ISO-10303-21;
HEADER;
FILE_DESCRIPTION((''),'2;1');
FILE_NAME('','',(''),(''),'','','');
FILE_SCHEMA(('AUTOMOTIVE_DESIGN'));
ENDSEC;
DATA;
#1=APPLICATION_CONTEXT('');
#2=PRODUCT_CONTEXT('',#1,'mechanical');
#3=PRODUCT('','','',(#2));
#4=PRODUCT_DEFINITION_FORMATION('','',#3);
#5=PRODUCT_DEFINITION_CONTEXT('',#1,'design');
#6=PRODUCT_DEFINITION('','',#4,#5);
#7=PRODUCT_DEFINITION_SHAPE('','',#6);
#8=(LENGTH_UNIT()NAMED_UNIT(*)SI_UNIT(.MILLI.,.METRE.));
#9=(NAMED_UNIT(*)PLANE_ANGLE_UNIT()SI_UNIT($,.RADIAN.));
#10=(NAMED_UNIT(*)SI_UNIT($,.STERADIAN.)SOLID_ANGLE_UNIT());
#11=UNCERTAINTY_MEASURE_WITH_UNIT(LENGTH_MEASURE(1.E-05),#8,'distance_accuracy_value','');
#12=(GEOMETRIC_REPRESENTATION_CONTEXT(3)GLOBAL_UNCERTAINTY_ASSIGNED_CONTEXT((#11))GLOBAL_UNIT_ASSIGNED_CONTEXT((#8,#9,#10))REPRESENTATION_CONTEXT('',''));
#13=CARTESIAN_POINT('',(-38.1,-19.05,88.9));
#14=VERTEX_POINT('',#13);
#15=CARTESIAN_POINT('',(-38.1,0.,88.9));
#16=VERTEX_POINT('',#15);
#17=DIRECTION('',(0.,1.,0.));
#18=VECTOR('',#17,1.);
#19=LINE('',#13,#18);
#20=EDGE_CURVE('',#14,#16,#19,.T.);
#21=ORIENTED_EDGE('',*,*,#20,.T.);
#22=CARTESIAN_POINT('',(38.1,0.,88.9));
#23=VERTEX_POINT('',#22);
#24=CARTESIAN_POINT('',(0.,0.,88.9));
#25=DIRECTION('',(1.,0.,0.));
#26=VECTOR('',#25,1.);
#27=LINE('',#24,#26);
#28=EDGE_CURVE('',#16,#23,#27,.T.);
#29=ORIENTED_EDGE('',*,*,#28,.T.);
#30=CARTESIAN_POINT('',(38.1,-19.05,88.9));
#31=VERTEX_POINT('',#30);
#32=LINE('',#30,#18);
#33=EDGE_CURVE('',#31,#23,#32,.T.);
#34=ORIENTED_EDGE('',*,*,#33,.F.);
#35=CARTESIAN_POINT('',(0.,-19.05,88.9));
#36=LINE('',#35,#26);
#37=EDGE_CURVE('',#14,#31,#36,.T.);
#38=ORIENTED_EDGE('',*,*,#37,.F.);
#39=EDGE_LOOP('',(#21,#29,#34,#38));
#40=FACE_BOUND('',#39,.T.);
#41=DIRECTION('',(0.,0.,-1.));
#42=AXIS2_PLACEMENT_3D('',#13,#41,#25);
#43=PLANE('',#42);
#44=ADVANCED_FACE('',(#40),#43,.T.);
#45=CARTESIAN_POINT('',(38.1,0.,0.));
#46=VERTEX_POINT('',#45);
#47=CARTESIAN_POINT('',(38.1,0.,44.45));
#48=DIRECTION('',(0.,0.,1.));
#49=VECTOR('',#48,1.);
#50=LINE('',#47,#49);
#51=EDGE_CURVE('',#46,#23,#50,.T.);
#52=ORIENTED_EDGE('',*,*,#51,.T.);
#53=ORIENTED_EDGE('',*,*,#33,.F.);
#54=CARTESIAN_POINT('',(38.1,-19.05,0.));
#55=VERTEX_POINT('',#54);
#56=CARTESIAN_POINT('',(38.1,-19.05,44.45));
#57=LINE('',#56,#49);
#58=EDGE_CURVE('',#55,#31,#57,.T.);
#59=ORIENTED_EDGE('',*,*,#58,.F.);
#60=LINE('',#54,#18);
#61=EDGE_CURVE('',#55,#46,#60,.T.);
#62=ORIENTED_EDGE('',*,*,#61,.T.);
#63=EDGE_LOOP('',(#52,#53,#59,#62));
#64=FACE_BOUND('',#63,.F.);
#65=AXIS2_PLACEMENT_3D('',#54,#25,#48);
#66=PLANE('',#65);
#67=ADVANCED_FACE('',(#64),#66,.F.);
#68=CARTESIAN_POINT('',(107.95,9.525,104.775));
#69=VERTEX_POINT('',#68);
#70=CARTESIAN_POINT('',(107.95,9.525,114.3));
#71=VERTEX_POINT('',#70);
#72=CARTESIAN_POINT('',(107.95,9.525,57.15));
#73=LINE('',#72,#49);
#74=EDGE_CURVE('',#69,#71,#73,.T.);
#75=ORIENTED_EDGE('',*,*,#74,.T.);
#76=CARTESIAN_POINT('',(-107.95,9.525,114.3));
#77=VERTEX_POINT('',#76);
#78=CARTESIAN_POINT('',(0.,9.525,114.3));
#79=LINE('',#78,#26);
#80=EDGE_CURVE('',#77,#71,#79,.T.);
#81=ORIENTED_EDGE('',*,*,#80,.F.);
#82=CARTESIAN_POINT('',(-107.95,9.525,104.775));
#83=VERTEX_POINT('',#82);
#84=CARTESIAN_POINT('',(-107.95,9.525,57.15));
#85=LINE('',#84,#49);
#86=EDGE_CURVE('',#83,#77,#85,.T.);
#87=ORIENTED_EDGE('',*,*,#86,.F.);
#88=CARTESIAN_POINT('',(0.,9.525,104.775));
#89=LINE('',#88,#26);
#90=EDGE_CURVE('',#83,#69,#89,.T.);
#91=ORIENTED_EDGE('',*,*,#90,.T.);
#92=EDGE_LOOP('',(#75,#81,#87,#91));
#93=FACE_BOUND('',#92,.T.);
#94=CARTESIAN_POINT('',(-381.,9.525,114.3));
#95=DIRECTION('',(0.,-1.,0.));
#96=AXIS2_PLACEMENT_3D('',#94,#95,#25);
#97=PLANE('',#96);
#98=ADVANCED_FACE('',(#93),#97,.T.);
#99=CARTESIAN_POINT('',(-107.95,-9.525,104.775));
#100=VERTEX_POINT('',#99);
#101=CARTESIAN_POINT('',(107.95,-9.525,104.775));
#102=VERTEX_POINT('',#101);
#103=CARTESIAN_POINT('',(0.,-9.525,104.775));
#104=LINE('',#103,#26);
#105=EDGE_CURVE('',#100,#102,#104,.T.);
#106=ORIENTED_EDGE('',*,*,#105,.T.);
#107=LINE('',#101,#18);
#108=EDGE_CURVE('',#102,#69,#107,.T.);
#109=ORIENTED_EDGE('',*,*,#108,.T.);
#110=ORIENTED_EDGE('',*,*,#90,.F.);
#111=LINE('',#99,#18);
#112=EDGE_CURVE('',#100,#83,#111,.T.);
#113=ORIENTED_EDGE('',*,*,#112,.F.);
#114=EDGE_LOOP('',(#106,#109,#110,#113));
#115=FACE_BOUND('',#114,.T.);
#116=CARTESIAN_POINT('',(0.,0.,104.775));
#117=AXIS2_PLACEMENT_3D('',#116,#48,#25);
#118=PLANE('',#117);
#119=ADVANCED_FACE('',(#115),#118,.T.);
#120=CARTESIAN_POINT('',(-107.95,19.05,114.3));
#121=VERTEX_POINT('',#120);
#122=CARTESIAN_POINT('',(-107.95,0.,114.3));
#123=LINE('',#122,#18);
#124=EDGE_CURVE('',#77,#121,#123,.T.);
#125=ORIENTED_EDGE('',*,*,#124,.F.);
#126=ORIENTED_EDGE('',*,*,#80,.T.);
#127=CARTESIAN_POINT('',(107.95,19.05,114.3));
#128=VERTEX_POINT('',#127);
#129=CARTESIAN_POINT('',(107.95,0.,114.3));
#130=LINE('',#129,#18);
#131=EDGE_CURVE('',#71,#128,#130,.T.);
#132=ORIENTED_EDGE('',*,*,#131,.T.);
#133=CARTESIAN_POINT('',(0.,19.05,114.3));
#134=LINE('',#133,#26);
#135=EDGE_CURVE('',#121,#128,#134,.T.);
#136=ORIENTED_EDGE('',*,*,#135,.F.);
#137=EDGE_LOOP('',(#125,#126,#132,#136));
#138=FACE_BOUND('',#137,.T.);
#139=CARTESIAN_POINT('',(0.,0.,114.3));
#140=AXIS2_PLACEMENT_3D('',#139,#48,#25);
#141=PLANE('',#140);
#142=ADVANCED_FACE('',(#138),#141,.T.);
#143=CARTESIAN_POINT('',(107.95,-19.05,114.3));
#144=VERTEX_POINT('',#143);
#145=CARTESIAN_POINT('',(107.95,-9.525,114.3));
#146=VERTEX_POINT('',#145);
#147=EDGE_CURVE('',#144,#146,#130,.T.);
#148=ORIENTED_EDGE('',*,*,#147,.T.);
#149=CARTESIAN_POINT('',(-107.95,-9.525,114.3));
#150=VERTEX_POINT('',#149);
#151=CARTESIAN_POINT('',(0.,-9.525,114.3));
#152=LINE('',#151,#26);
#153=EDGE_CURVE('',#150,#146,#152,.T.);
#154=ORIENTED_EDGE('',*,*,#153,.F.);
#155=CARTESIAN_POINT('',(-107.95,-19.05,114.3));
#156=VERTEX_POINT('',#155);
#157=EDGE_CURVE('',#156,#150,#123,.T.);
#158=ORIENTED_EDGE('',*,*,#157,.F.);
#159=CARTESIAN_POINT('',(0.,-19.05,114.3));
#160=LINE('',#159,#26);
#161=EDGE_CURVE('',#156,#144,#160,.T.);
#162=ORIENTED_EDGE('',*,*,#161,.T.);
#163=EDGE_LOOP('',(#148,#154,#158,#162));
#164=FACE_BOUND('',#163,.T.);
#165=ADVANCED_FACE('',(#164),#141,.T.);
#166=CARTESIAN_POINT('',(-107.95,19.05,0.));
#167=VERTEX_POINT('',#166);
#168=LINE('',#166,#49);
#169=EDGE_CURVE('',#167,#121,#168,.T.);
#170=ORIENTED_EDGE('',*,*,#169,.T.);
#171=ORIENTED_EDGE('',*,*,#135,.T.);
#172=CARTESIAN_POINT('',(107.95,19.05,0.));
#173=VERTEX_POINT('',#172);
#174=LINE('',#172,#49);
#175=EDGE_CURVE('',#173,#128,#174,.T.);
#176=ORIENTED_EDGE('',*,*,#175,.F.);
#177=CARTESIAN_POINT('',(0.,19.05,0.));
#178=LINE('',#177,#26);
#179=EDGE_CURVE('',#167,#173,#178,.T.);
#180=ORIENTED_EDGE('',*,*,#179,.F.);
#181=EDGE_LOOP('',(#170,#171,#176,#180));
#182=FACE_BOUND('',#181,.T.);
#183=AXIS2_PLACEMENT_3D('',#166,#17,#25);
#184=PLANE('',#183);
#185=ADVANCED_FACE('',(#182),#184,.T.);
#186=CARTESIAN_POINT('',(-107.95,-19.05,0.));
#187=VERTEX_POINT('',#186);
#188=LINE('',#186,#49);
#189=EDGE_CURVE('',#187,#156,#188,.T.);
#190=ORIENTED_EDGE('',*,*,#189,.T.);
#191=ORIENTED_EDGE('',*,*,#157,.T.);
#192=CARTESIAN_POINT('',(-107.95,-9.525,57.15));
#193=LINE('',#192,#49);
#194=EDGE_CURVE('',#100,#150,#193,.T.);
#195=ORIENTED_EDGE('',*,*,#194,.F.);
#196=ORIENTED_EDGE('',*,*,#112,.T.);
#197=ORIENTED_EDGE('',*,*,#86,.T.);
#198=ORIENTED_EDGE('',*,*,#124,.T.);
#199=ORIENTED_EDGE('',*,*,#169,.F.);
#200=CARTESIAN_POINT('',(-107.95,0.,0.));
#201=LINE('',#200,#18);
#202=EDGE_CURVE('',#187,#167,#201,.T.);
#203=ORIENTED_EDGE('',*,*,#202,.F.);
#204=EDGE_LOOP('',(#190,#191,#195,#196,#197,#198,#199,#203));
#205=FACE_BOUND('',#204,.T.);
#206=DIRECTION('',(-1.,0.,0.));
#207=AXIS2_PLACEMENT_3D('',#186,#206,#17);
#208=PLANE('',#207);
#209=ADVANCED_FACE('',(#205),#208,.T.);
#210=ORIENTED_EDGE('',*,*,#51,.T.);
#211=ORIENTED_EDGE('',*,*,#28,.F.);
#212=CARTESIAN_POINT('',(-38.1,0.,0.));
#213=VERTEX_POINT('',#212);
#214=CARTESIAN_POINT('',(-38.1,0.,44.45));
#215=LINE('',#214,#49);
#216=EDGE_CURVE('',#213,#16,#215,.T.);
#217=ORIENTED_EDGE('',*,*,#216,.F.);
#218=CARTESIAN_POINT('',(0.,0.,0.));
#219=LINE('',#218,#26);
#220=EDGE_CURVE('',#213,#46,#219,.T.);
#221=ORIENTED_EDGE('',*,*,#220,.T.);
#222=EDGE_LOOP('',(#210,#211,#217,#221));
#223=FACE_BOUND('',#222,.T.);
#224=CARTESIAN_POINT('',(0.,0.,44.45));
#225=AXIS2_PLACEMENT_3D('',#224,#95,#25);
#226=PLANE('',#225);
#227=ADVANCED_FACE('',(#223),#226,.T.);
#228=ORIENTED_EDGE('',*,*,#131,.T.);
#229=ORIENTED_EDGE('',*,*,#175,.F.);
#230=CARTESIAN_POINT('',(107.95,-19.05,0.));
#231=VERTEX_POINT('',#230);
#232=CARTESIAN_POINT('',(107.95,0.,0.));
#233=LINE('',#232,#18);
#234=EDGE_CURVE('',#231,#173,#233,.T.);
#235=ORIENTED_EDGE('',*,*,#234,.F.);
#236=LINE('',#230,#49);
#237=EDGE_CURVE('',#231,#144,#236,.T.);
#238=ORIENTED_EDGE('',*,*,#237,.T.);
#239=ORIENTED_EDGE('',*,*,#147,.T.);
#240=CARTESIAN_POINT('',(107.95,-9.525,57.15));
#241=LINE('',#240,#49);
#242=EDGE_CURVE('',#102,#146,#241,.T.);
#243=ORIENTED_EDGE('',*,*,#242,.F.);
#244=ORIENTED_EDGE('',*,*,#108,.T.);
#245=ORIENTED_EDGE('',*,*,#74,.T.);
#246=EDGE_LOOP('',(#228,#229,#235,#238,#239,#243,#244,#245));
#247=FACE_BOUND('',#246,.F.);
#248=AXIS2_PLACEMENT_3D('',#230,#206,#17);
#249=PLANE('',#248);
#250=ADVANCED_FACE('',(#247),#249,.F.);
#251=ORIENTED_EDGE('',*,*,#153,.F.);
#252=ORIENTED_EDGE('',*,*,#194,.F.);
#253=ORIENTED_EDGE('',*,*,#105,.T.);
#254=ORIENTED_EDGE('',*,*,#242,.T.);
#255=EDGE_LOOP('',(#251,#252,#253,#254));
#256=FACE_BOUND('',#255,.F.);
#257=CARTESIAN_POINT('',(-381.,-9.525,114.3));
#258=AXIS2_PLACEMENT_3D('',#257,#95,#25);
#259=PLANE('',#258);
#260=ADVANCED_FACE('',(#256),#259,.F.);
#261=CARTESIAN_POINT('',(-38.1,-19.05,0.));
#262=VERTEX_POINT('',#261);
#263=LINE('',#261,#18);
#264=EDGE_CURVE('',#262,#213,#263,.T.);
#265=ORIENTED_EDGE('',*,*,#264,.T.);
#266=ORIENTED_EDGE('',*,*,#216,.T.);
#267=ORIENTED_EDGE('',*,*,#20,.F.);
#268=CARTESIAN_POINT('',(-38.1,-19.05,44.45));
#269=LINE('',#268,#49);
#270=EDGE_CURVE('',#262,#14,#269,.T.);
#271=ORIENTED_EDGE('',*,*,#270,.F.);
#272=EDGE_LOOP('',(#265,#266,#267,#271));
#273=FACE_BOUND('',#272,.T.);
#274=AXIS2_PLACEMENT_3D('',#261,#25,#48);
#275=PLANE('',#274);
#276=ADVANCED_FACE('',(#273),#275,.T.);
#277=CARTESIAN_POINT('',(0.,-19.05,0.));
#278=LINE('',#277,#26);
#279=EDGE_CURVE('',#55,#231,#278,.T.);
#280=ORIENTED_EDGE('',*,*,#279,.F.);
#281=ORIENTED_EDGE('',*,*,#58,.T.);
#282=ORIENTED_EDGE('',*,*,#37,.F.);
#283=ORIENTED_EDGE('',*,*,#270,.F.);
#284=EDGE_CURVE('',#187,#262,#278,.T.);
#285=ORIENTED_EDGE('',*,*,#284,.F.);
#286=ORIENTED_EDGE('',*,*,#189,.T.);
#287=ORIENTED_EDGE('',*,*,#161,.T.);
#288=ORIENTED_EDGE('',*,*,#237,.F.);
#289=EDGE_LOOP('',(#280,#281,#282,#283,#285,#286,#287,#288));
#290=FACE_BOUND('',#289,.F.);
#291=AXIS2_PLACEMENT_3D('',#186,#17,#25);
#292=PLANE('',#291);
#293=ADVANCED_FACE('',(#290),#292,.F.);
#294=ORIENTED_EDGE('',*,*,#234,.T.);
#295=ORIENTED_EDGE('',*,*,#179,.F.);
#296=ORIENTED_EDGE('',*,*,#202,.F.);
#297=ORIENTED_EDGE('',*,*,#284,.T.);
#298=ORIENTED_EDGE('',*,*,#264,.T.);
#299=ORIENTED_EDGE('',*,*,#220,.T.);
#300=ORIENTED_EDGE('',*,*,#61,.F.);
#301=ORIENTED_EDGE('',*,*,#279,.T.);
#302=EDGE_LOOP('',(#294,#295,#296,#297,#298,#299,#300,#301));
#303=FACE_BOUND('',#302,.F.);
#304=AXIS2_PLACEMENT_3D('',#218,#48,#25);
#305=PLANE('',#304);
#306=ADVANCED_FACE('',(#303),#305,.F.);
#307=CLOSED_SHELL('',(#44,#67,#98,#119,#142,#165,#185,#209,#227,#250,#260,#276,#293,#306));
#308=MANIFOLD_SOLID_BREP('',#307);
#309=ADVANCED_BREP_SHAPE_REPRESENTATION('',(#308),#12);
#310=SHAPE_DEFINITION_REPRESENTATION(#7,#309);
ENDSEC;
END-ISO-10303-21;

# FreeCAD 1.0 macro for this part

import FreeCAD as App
import Part
import Sketcher
Q = App.Units.Quantity

doc = App.newDocument("Part")
body = doc.addObject("PartDesign::Body", "Body")

# Sketch on XY plane
sketch1 = body.newObject("Sketcher::SketchObject", "Sketch")
sketch1.AttachmentSupport = (doc.getObject("XY_Plane"), [""])
sketch1.MapMode = "FlatFace"
sketch1.addGeometry(Part.LineSegment(App.Vector(-107.95, 19.05, 0), App.Vector(-107.95, -19.05, 0)), False)
sketch1.addGeometry(Part.LineSegment(App.Vector(-107.95, -19.05, 0), App.Vector(107.95, -19.05, 0)), False)
sketch1.addGeometry(Part.LineSegment(App.Vector(107.95, -19.05, 0), App.Vector(107.95, 19.05, 0)), False)
sketch1.addGeometry(Part.LineSegment(App.Vector(107.95, 19.05, 0), App.Vector(-107.95, 19.05, 0)), False)
sketch1.addConstraint(Sketcher.Constraint("Coincident", 0, 2, 1, 1))
sketch1.addConstraint(Sketcher.Constraint("Coincident", 1, 2, 2, 1))
sketch1.addConstraint(Sketcher.Constraint("Coincident", 2, 2, 3, 1))
sketch1.addConstraint(Sketcher.Constraint("Coincident", 3, 2, 0, 1))
sketch1.addConstraint(Sketcher.Constraint("Vertical", 0))
sketch1.addConstraint(Sketcher.Constraint("Horizontal", 1))
sketch1.addConstraint(Sketcher.Constraint("Vertical", 2))
sketch1.addConstraint(Sketcher.Constraint("Horizontal", 3))
sketch1.addConstraint(Sketcher.Constraint("Symmetric", 0, 2, 2, 2, -1, 1))
sketch1.addConstraint(Sketcher.Constraint("DistanceX", 1, 1, 1, 2, Q("8.5 in")))
sketch1.addConstraint(Sketcher.Constraint("DistanceY", 0, 2, 0, 1, Q("1.5 in")))
pad1 = body.newObject("PartDesign::Pad", "Pad")
pad1.Profile = sketch1
pad1.Length = Q("4.5 in")

# Sketch on XY plane
sketch2 = body.newObject("Sketcher::SketchObject", "Sketch001")
sketch2.AttachmentSupport = (doc.getObject("XY_Plane"), [""])
sketch2.MapMode = "FlatFace"
sketch2.AttachmentOffset = App.Placement(App.Vector(0, 0, 4.5 * 25.4), App.Rotation())
sketch2.addGeometry(Part.LineSegment(App.Vector(-381, 9.525, 0), App.Vector(-381, -9.525, 0)), False)
sketch2.addGeometry(Part.LineSegment(App.Vector(-381, -9.525, 0), App.Vector(381, -9.525, 0)), False)
sketch2.addGeometry(Part.LineSegment(App.Vector(381, -9.525, 0), App.Vector(381, 9.525, 0)), False)
sketch2.addGeometry(Part.LineSegment(App.Vector(381, 9.525, 0), App.Vector(-381, 9.525, 0)), False)
sketch2.addConstraint(Sketcher.Constraint("Coincident", 0, 2, 1, 1))
sketch2.addConstraint(Sketcher.Constraint("Coincident", 1, 2, 2, 1))
sketch2.addConstraint(Sketcher.Constraint("Coincident", 2, 2, 3, 1))
sketch2.addConstraint(Sketcher.Constraint("Coincident", 3, 2, 0, 1))
sketch2.addConstraint(Sketcher.Constraint("Vertical", 0))
sketch2.addConstraint(Sketcher.Constraint("Horizontal", 1))
sketch2.addConstraint(Sketcher.Constraint("Vertical", 2))
sketch2.addConstraint(Sketcher.Constraint("Horizontal", 3))
sketch2.addConstraint(Sketcher.Constraint("Symmetric", 0, 2, 2, 2, -1, 1))
sketch2.addConstraint(Sketcher.Constraint("DistanceX", 1, 1, 1, 2, Q("30 in")))
sketch2.addConstraint(Sketcher.Constraint("DistanceY", 0, 2, 0, 1, Q("0.75 in")))
pocket1 = body.newObject("PartDesign::Pocket", "Pocket")
pocket1.Profile = sketch2
pocket1.Length = Q("0.375 in")

# Sketch on XZ plane
sketch3 = body.newObject("Sketcher::SketchObject", "Sketch002")
sketch3.AttachmentSupport = (doc.getObject("XZ_Plane"), [""])
sketch3.MapMode = "FlatFace"
sketch3.AttachmentOffset = App.Placement(App.Vector(0, 0, 0.75 * 25.4), App.Rotation())
sketch3.addGeometry(Part.LineSegment(App.Vector(-38.1, 88.9, 0), App.Vector(-38.1, 0, 0)), False)
sketch3.addGeometry(Part.LineSegment(App.Vector(-38.1, 0, 0), App.Vector(38.1, 0, 0)), False)
sketch3.addGeometry(Part.LineSegment(App.Vector(38.1, 0, 0), App.Vector(38.1, 88.9, 0)), False)
sketch3.addGeometry(Part.LineSegment(App.Vector(38.1, 88.9, 0), App.Vector(-38.1, 88.9, 0)), False)
sketch3.addConstraint(Sketcher.Constraint("Coincident", 0, 2, 1, 1))
sketch3.addConstraint(Sketcher.Constraint("Coincident", 1, 2, 2, 1))
sketch3.addConstraint(Sketcher.Constraint("Coincident", 2, 2, 3, 1))
sketch3.addConstraint(Sketcher.Constraint("Coincident", 3, 2, 0, 1))
sketch3.addConstraint(Sketcher.Constraint("Vertical", 0))
sketch3.addConstraint(Sketcher.Constraint("Horizontal", 1))
sketch3.addConstraint(Sketcher.Constraint("Vertical", 2))
sketch3.addConstraint(Sketcher.Constraint("Horizontal", 3))
sketch3.addConstraint(Sketcher.Constraint("Symmetric", 0, 2, 1, 2, -1, 1))
sketch3.addConstraint(Sketcher.Constraint("DistanceX", 1, 1, 1, 2, Q("3 in")))
sketch3.addConstraint(Sketcher.Constraint("DistanceY", 0, 2, 0, 1, Q("3.5 in")))
pocket2 = body.newObject("PartDesign::Pocket", "Pocket001")
pocket2.Profile = sketch3
pocket2.Length = Q("0.75 in")

doc.recompute()
